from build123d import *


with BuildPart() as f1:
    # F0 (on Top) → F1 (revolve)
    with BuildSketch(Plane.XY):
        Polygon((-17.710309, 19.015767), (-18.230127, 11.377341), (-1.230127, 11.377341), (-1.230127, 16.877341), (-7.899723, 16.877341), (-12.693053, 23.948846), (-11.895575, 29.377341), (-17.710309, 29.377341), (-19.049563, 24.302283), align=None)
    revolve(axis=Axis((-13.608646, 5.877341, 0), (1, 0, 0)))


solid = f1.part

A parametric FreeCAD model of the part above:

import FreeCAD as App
import Part
import Sketcher

V = App.Vector


def add_polygon(sketch, points):
    """Adds a closed chain of lines whose ends are joined by coincident constraints."""
    first, n = sketch.GeometryCount, len(points)
    for a, b in zip(points, points[1:] + points[:1]):
        sketch.addGeometry(Part.LineSegment(App.Vector(*a, 0), App.Vector(*b, 0)), False)
    for i in range(n):
        sketch.addConstraint(Sketcher.Constraint("Coincident", first + i, 2, first + (i + 1) % n, 1))

doc = App.newDocument("Part")
body = doc.addObject("PartDesign::Body", "Body")

sketch1 = body.newObject("Sketcher::SketchObject", "Sketch")
sketch1.AttachmentSupport = (doc.getObject("XY_Plane"), [""])
sketch1.MapMode = "FlatFace"
add_polygon(sketch1, [(-18, 19), (-18, 11), (-1, 11), (-1, 17), (-8, 17), (-13, 24), (-12, 29), (-18, 29), (-19, 24)])
sketch1.addGeometry(Part.LineSegment(V(-19, 6, 0), V(-1, 6, 0)), True)
sketch1.addConstraint([
    Sketcher.Constraint("Horizontal", 1),
    Sketcher.Constraint("Vertical", 2),
    Sketcher.Constraint("Horizontal", 3),
    Sketcher.Constraint("Horizontal", 6),
    Sketcher.Constraint("Horizontal", 9),
    Sketcher.Constraint("Vertical", 6, 2, 8, 2),
    Sketcher.Constraint("Vertical", 7, 2, 9, 1),
    Sketcher.Constraint("Vertical", 2, 2, 9, 2),
    Sketcher.Constraint("DistanceX", 1, 1, 1, 2, 17.0),
    Sketcher.Constraint("DistanceY", 2, 1, 2, 2, 5.5),
    Sketcher.Constraint("DistanceY", 0, 2, 5, 2, 18.0),
    Sketcher.Constraint("DistanceY", 9, 1, 3, 2, 11.0),
    Sketcher.Constraint("Distance", 4, 8.542962),
    Sketcher.Constraint("Distance", 5, 5.486759),
    Sketcher.Constraint("Distance", 7, 5.248792),
    Sketcher.Constraint("DistanceX", 3, 2, 3, 1, 6.669596),
    Sketcher.Constraint("DistanceX", 6, 2, 6, 1, 5.814734),
    Sketcher.Constraint("DistanceX", 9, 1, 9, 2, 17.819436),
    Sketcher.Constraint("DistanceY", -1, 1, 0, 2, 11.377341),
    Sketcher.Constraint("DistanceX", 6, 2, -1, 1, 17.710309),
    Sketcher.Constraint("DistanceX", 4, 2, 3, 2, 4.79333),
    Sketcher.Constraint("DistanceY", 8, 2, 4, 2, 4.933079),
])
revolution = body.newObject("PartDesign::Revolution", "Revolution")
revolution.Profile = sketch1
revolution.ReferenceAxis = (sketch1, ["Axis0"])
revolution.Angle = 360

doc.recompute()
